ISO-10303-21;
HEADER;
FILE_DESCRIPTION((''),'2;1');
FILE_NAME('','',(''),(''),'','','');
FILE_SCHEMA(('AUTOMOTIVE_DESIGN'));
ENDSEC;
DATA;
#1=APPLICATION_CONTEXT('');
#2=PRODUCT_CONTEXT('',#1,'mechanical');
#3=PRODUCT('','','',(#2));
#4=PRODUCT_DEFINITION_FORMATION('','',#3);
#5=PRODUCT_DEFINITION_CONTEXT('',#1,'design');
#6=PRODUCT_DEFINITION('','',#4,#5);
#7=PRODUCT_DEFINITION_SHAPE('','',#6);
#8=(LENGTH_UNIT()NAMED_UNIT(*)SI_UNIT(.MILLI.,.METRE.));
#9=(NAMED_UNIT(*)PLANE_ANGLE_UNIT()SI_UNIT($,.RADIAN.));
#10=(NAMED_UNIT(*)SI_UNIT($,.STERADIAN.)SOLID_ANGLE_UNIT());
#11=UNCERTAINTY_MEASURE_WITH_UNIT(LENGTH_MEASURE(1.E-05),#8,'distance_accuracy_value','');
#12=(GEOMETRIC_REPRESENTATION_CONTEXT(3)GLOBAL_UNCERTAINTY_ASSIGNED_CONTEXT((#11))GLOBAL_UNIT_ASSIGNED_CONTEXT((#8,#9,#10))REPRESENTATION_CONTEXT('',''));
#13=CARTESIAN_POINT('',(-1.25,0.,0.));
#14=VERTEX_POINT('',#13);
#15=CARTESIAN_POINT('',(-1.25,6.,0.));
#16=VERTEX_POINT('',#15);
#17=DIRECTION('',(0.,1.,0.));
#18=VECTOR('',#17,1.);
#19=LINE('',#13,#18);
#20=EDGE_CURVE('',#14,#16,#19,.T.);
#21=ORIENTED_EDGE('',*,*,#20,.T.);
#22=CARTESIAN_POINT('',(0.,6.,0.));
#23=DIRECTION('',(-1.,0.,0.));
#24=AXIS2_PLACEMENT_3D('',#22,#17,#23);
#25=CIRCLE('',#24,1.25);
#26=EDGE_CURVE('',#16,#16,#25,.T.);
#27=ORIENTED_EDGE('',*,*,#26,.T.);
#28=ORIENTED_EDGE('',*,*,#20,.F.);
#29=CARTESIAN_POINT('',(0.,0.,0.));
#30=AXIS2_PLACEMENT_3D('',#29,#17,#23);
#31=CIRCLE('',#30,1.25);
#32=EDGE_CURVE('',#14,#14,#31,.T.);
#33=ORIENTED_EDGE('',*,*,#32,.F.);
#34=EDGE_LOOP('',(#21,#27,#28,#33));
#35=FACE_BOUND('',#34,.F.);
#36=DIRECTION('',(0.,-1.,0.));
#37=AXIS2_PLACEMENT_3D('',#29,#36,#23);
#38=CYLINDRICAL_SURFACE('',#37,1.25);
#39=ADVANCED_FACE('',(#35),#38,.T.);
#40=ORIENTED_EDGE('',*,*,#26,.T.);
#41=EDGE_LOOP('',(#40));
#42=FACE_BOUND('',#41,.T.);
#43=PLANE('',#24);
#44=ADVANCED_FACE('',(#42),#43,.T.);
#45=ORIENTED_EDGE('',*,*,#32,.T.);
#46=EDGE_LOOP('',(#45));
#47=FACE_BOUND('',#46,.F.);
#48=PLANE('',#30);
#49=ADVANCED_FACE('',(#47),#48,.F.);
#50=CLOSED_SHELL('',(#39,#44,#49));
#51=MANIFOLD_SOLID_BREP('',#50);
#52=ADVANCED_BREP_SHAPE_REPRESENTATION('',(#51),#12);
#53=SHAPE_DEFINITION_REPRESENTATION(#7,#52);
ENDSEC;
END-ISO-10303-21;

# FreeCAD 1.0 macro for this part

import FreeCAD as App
import Part
import Sketcher

V = App.Vector

doc = App.newDocument("Part")
body = doc.addObject("PartDesign::Body", "Body")

# Sketch on XZ plane
sketch1 = body.newObject("Sketcher::SketchObject", "Sketch")
sketch1.AttachmentSupport = (doc.getObject("XZ_Plane"), [""])
sketch1.MapMode = "FlatFace"
sketch1.addGeometry(Part.Circle(V(0, 0, 0), V(0, 0, 1), 1.2), False)
sketch1.addConstraint([
    Sketcher.Constraint("Coincident", 0, 3, -1, 1),
    Sketcher.Constraint("Diameter", 0, 2.5),
])
pad1 = body.newObject("PartDesign::Pad", "Pad")
pad1.Profile = sketch1
pad1.Length = 6
pad1.Reversed = True

doc.recompute()
